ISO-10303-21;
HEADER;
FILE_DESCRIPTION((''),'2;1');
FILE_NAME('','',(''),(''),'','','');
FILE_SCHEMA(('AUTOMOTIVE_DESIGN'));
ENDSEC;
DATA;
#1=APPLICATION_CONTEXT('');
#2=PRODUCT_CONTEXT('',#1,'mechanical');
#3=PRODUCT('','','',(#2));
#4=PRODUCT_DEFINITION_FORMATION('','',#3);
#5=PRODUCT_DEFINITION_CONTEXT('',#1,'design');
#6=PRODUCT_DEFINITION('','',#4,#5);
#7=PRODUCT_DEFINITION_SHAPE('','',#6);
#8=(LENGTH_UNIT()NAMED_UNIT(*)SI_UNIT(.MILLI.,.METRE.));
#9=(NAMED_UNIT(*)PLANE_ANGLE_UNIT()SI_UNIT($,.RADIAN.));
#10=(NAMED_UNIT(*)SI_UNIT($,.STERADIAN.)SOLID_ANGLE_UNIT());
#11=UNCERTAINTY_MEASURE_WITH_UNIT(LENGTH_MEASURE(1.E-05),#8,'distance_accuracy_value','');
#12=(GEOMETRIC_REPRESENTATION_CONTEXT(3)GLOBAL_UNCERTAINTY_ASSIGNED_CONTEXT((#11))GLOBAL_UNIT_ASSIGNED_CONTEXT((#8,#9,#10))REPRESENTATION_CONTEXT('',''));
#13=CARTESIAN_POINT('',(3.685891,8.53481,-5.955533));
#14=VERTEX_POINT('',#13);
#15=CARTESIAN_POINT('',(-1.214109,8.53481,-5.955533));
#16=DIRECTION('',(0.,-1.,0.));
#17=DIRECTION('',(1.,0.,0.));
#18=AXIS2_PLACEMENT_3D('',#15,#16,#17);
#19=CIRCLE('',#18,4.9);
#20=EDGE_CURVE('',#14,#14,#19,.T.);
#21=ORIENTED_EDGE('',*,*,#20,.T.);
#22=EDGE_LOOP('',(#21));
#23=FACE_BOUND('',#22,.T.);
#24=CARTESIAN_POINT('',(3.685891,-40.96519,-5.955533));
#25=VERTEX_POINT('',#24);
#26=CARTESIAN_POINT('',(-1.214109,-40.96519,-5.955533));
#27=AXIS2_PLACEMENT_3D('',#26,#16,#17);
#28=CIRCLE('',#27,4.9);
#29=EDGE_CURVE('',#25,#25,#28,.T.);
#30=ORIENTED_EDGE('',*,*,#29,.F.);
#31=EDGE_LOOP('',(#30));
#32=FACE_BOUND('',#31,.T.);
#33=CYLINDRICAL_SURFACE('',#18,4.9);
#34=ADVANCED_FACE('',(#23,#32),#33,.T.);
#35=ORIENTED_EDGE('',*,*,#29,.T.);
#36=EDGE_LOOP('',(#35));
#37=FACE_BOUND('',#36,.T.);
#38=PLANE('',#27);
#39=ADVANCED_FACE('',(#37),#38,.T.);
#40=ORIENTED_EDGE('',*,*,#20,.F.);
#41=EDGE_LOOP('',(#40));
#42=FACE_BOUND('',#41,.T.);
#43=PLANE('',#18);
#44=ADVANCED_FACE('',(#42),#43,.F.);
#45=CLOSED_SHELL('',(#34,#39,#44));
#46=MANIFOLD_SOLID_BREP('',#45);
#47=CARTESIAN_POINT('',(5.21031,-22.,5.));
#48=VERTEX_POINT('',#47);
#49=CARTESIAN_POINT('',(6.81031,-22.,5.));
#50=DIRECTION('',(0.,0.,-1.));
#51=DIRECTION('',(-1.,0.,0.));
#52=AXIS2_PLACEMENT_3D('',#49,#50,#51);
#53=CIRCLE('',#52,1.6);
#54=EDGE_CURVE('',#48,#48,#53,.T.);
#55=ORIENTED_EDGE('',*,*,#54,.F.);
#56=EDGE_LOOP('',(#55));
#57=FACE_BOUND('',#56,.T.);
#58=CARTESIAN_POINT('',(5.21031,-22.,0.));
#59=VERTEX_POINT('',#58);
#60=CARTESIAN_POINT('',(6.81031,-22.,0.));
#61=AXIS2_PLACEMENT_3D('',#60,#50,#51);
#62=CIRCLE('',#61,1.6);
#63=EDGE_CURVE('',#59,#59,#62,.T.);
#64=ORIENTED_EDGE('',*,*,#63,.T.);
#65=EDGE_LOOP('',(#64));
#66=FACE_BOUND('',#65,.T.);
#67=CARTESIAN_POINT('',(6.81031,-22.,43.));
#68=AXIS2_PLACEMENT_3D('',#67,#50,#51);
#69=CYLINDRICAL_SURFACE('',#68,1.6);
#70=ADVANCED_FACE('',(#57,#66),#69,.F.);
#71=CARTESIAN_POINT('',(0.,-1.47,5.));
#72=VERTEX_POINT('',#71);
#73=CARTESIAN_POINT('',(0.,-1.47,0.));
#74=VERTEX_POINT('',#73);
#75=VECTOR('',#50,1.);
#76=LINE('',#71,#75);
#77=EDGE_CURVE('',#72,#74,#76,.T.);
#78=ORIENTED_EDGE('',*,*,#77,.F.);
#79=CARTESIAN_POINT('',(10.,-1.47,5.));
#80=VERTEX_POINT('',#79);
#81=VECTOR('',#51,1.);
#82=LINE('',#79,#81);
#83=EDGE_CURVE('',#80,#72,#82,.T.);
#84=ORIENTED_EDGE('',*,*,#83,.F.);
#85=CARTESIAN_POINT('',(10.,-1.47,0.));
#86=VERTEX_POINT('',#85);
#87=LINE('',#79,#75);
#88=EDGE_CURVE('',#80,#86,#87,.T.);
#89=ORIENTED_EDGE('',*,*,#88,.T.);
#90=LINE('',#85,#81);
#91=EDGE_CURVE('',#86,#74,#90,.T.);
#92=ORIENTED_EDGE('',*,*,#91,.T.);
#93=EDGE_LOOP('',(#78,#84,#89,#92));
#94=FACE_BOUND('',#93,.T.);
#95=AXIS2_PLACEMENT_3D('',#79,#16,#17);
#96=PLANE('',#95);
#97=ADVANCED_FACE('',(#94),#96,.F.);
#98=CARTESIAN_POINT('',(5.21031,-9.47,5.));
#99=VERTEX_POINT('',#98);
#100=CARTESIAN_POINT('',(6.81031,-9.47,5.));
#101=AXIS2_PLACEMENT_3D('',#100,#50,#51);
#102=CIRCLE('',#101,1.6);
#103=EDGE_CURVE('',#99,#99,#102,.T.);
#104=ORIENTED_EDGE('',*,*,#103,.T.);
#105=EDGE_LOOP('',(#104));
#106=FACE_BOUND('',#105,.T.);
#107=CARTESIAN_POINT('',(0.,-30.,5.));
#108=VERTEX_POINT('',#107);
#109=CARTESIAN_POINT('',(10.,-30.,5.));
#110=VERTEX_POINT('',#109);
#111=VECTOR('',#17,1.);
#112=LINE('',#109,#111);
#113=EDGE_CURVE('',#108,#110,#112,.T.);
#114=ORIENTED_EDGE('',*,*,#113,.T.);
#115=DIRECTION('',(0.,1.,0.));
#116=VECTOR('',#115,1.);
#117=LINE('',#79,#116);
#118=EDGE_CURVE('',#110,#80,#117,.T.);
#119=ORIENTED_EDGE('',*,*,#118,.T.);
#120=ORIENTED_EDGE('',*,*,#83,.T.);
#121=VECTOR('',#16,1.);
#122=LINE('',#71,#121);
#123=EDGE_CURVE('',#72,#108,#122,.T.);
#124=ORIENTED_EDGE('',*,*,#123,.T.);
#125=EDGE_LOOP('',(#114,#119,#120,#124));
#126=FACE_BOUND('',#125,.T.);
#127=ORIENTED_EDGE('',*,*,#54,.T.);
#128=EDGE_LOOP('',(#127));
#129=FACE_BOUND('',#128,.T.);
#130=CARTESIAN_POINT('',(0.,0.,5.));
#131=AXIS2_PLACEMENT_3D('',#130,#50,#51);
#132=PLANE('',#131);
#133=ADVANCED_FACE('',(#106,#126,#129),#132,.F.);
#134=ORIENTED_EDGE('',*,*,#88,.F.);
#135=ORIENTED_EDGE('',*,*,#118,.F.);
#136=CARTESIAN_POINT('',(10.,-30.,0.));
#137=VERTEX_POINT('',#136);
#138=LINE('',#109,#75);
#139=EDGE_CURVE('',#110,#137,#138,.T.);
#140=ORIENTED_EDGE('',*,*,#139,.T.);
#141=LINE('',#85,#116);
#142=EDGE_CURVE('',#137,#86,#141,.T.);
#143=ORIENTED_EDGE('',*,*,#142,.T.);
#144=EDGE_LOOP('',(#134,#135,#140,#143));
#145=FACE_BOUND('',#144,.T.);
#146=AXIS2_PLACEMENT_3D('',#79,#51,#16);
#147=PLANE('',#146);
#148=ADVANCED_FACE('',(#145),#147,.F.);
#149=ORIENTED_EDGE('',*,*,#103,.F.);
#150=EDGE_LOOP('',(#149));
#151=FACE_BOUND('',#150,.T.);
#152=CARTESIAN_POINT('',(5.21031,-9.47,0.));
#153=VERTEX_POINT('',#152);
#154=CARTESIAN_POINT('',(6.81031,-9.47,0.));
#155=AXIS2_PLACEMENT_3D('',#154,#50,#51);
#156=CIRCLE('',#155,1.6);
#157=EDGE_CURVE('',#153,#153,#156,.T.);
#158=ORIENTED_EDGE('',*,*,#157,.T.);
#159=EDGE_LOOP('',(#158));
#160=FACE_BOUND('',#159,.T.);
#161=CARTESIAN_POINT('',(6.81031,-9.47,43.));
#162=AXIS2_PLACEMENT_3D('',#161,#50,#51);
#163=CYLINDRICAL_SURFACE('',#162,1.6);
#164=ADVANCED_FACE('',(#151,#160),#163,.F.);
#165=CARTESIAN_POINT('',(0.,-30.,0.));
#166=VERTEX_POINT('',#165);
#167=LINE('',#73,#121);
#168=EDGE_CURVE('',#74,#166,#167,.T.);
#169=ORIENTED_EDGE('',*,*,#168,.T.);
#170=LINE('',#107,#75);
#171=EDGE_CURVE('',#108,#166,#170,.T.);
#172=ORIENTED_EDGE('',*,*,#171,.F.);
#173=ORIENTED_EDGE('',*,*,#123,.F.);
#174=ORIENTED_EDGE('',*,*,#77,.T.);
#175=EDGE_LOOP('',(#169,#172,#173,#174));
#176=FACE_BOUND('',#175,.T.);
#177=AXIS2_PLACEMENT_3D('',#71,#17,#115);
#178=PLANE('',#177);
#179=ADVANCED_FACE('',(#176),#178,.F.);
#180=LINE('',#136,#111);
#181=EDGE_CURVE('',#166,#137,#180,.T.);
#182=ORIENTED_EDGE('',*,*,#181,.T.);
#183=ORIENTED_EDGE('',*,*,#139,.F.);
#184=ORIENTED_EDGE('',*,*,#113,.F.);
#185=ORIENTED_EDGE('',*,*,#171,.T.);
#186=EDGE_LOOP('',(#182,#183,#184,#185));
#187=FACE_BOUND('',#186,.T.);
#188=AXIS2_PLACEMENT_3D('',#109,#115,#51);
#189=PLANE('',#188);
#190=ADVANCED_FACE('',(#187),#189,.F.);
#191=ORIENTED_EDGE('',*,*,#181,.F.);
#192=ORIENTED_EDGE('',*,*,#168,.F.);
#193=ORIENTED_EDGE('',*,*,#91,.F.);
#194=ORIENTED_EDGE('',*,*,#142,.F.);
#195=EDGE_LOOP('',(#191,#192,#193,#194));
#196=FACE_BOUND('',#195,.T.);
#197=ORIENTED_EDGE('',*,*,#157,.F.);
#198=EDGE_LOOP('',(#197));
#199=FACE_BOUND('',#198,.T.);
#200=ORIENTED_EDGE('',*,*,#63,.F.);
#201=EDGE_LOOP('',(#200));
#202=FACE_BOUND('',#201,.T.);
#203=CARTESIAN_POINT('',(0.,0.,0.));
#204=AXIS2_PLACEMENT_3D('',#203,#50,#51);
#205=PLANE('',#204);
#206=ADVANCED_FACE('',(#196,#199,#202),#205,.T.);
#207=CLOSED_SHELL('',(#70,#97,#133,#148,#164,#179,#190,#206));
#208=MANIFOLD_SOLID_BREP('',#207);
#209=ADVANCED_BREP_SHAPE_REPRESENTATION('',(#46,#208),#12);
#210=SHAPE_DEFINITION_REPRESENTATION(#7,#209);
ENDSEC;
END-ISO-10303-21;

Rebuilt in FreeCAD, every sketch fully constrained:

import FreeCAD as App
import Part
import Sketcher
from FreeCAD import Vector
Q = App.Units.Quantity


def add_polygon(sketch, points):
    """Adds a closed chain of lines whose ends are joined by coincident constraints."""
    first, n = sketch.GeometryCount, len(points)
    for a, b in zip(points, points[1:] + points[:1]):
        sketch.addGeometry(Part.LineSegment(App.Vector(*a, 0), App.Vector(*b, 0)), False)
    for i in range(n):
        sketch.addConstraint(Sketcher.Constraint("Coincident", first + i, 2, first + (i + 1) % n, 1))

doc = App.newDocument("Part")
body = doc.addObject("PartDesign::Body", "Body")

sketch1 = body.newObject("Sketcher::SketchObject", "Sketch")
sketch1.AttachmentSupport = (doc.getObject("XY_Plane"), [""])
sketch1.MapMode = "FlatFace"
add_polygon(sketch1, [(0, -1.47), (0, -30), (10, -30), (10, -1.47)])
sketch1.addConstraint(Sketcher.Constraint("Vertical", 0))
sketch1.addConstraint(Sketcher.Constraint("Horizontal", 1))
sketch1.addConstraint(Sketcher.Constraint("Vertical", 2))
sketch1.addConstraint(Sketcher.Constraint("Horizontal", 3))
sketch1.addConstraint(Sketcher.Constraint("PointOnObject", 0, 2, -2))
sketch1.addConstraint(Sketcher.Constraint("DistanceX", 1, 1, 1, 2, Q("10 mm")))
sketch1.addConstraint(Sketcher.Constraint("DistanceY", 0, 2, -1, 1, Q("30 mm")))
sketch1.addConstraint(Sketcher.Constraint("DistanceY", 0, 2, 0, 1, Q("28.53 mm")))
pad1 = body.newObject("PartDesign::Pad", "Pad")
pad1.Profile = sketch1
pad1.Length = 5

sketch2 = body.newObject("Sketcher::SketchObject", "Sketch001")
sketch2.AttachmentSupport = (doc.getObject("XY_Plane"), [""])
sketch2.MapMode = "FlatFace"
sketch2.addGeometry(Part.Circle(Vector(6.81031, -9.47, 0), Vector(0, 0, 1), 1.6), False)
sketch2.addGeometry(Part.Circle(Vector(6.81031, -22, 0), Vector(0, 0, 1), 1.6), False)
sketch2.addConstraint(Sketcher.Constraint("Equal", 0, 1))
sketch2.addConstraint(Sketcher.Constraint("Vertical", 0, 3, 1, 3))
sketch2.addConstraint(Sketcher.Constraint("Diameter", 0, Q("3.2 mm")))
sketch2.addConstraint(Sketcher.Constraint("DistanceY", 1, 3, -1, 1, Q("22 mm")))
sketch2.addConstraint(Sketcher.Constraint("DistanceY", 0, 3, -1, 1, Q("9.47 mm")))
sketch2.addConstraint(Sketcher.Constraint("DistanceX", -1, 1, 0, 3, Q("6.81031 mm")))
pocket1 = body.newObject("PartDesign::Pocket", "Pocket")
pocket1.Profile = sketch2
pocket1.Length = 43
pocket1.Reversed = True
body2 = doc.addObject("PartDesign::Body", "Body001")

sketch3 = body2.newObject("Sketcher::SketchObject", "Sketch002")
sketch3.AttachmentSupport = (doc.getObject("XZ_Plane001"), [""])
sketch3.MapMode = "FlatFace"
sketch3.AttachmentOffset = App.Placement(Vector(0, 0, 40.96519), App.Rotation())
sketch3.addGeometry(Part.Circle(Vector(-1.214109, -5.955533, 0), Vector(0, 0, 1), 4.9), False)
sketch3.addConstraint(Sketcher.Constraint("Diameter", 0, Q("9.8 mm")))
sketch3.addConstraint(Sketcher.Constraint("DistanceX", 0, 3, -1, 1, Q("1.214109 mm")))
sketch3.addConstraint(Sketcher.Constraint("DistanceY", 0, 3, -1, 1, Q("5.955533 mm")))
pad2 = body2.newObject("PartDesign::Pad", "Pad001")
pad2.Profile = sketch3
pad2.Length = 49.5
pad2.Reversed = True

doc.recompute()
